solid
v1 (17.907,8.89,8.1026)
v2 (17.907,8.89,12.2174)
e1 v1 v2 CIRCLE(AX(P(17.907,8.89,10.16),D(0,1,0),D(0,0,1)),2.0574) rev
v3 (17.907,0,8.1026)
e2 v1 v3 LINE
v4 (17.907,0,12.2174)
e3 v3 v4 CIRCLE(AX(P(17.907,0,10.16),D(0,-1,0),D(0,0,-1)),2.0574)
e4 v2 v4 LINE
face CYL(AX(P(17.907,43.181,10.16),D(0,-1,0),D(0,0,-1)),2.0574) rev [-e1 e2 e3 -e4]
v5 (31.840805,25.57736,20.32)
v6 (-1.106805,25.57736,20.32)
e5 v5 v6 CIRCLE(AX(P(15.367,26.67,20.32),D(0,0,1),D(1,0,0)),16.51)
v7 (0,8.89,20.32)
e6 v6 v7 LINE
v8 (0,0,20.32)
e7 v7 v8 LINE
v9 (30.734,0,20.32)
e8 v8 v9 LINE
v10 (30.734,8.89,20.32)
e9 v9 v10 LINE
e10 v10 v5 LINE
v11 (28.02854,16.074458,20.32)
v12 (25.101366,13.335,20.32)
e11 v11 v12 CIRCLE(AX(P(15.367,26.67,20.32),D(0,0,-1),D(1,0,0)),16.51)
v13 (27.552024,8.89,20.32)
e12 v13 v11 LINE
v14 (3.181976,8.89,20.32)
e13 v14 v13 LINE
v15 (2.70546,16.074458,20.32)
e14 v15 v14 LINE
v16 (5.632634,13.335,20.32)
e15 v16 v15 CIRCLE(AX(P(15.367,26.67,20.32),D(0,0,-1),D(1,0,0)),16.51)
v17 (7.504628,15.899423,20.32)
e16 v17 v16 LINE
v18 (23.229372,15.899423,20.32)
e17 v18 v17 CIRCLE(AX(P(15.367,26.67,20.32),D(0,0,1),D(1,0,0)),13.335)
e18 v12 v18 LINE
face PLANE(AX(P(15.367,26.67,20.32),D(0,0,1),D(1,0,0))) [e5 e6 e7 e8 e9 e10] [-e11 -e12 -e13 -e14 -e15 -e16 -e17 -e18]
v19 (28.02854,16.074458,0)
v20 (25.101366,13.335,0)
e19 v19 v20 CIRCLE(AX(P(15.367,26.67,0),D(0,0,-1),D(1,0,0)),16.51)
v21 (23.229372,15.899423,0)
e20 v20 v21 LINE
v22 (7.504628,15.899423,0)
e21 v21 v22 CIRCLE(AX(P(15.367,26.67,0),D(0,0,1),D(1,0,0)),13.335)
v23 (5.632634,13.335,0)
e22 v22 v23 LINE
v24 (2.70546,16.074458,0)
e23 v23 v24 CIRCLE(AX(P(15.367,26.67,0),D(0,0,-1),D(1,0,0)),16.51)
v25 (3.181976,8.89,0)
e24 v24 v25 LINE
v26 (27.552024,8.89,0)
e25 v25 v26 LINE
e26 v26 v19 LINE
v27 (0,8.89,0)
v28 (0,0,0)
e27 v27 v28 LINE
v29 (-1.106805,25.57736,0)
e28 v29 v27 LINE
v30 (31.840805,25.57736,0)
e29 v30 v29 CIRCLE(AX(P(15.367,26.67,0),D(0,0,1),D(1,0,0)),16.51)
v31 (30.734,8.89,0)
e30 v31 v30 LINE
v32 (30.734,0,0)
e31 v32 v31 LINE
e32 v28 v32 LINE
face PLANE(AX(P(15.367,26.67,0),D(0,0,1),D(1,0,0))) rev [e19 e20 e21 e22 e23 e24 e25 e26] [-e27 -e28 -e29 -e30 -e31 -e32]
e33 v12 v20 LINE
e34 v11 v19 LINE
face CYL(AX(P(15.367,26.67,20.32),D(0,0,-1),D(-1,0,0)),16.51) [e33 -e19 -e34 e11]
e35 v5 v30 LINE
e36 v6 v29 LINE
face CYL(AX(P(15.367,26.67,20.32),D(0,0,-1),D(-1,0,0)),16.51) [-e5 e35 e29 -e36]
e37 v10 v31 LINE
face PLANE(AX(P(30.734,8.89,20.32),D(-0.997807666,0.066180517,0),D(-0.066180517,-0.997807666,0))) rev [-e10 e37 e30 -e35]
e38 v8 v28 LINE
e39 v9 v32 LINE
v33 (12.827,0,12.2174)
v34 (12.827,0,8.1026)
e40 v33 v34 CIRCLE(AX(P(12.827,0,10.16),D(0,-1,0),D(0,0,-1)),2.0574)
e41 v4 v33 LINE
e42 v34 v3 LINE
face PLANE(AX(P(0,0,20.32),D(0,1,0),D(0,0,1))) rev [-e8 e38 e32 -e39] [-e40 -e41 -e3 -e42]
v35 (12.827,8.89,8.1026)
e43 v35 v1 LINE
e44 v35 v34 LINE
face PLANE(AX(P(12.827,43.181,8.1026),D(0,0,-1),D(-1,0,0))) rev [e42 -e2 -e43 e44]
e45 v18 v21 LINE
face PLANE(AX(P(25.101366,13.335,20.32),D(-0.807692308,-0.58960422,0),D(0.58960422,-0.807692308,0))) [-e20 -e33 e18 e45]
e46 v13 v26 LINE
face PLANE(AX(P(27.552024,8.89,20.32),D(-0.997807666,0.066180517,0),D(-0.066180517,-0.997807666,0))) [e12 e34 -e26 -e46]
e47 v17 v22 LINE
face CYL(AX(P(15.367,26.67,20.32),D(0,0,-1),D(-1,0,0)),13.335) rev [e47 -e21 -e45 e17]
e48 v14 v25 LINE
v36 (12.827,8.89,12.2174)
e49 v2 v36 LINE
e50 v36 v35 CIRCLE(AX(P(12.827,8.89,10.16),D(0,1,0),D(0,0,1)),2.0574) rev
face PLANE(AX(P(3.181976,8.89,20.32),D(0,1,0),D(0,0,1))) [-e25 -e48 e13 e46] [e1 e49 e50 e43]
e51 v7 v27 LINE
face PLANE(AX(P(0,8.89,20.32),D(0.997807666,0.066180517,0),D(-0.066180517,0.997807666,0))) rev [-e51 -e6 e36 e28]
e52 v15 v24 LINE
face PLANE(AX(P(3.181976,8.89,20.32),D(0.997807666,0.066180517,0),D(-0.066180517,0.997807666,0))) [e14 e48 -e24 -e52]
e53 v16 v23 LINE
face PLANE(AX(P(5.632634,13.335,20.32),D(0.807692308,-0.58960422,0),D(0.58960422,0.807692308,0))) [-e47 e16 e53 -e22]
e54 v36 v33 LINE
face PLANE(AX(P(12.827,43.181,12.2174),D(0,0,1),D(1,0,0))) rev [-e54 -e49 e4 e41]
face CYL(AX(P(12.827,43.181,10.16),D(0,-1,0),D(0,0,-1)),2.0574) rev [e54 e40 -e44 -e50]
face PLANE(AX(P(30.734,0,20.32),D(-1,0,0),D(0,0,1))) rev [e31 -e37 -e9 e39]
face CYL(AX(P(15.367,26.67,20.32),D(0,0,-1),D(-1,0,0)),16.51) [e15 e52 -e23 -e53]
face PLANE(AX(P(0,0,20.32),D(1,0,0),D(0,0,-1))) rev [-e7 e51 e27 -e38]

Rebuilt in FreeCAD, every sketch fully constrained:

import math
import FreeCAD as App
import Part
import Sketcher

V = App.Vector
Q = App.Units.Quantity

doc = App.newDocument("Part")
body = doc.addObject("PartDesign::Body", "Body")

sketch1 = doc.addObject("Sketcher::SketchObject", "Sketch")
body.addObject(sketch1)
sketch1.AttachmentSupport = (doc.XY_Plane, [""])
sketch1.MapMode = "FlatFace"
sketch1.addGeometry(Part.LineSegment(V(0, 0, 0), V(30.7, 0, 0)), False)
sketch1.addGeometry(Part.LineSegment(V(30.7, 0, 0), V(30.7, 8.9, 0)), False)
sketch1.addGeometry(Part.LineSegment(V(30.7, 8.9, 0), V(31.8, 25.6, 0)), False)
sketch1.addGeometry(Part.ArcOfCircle(Part.Circle(V(15.4, 26.7, 0), V(0, 0, 1), 16.5), math.radians(-4), math.radians(184)), False)
sketch1.addGeometry(Part.LineSegment(V(-1.1, 25.6, 0), V(0, 8.9, 0)), False)
sketch1.addGeometry(Part.LineSegment(V(0, 8.9, 0), V(0, 0, 0)), False)
sketch1.addGeometry(Part.LineSegment(V(27.6, 8.9, 0), V(3.2, 8.9, 0)), False)
sketch1.addGeometry(Part.LineSegment(V(3.2, 8.9, 0), V(2.7, 16.1, 0)), False)
sketch1.addGeometry(Part.ArcOfCircle(Part.Circle(V(15.4, 26.7, 0), V(0, 0, 1), 16.5), math.radians(-140.08), math.radians(-126.13)), False)
sketch1.addGeometry(Part.LineSegment(V(5.6, 13.3, 0), V(7.5, 15.9, 0)), False)
sketch1.addGeometry(Part.ArcOfCircle(Part.Circle(V(15.4, 26.7, 0), V(0, 0, 1), 13.3), math.radians(-54), math.radians(234)), False)
sketch1.addGeometry(Part.LineSegment(V(23.2, 15.9, 0), V(25.1, 13.3, 0)), False)
sketch1.addGeometry(Part.ArcOfCircle(Part.Circle(V(15.4, 26.7, 0), V(0, 0, 1), 16.5), math.radians(-53.87), math.radians(-39.92)), False)
sketch1.addGeometry(Part.LineSegment(V(28, 16.1, 0), V(27.6, 8.9, 0)), False)
sketch1.addConstraint(Sketcher.Constraint("Coincident", 0, 2, 1, 1))
sketch1.addConstraint(Sketcher.Constraint("Coincident", 1, 2, 2, 1))
sketch1.addConstraint(Sketcher.Constraint("Tangent", 2, 2, 3, 1))
sketch1.addConstraint(Sketcher.Constraint("Tangent", 3, 2, 4, 1))
sketch1.addConstraint(Sketcher.Constraint("Coincident", 4, 2, 5, 1))
sketch1.addConstraint(Sketcher.Constraint("Coincident", 5, 2, 0, 1))
sketch1.addConstraint(Sketcher.Constraint("Coincident", 6, 2, 7, 1))
sketch1.addConstraint(Sketcher.Constraint("Coincident", 7, 2, 8, 1))
sketch1.addConstraint(Sketcher.Constraint("Coincident", 8, 2, 9, 1))
sketch1.addConstraint(Sketcher.Constraint("Coincident", 9, 2, 10, 2))
sketch1.addConstraint(Sketcher.Constraint("Coincident", 10, 1, 11, 1))
sketch1.addConstraint(Sketcher.Constraint("Coincident", 11, 2, 12, 1))
sketch1.addConstraint(Sketcher.Constraint("Coincident", 12, 2, 13, 1))
sketch1.addConstraint(Sketcher.Constraint("Coincident", 13, 2, 6, 1))
sketch1.addConstraint(Sketcher.Constraint("Horizontal", 0))
sketch1.addConstraint(Sketcher.Constraint("Vertical", 1))
sketch1.addConstraint(Sketcher.Constraint("Vertical", 5))
sketch1.addConstraint(Sketcher.Constraint("Horizontal", 6))
sketch1.addConstraint(Sketcher.Constraint("Coincident", 5, 2, -1, 1))
sketch1.addConstraint(Sketcher.Constraint("Coincident", 8, 3, 3, 3))
sketch1.addConstraint(Sketcher.Constraint("Coincident", 10, 3, 3, 3))
sketch1.addConstraint(Sketcher.Constraint("Coincident", 12, 3, 3, 3))
sketch1.addConstraint(Sketcher.Constraint("Equal", 3, 8))
sketch1.addConstraint(Sketcher.Constraint("Equal", 8, 12))
sketch1.addConstraint(Sketcher.Constraint("Parallel", 4, 7))
sketch1.addConstraint(Sketcher.Constraint("Parallel", 2, 13))
sketch1.addConstraint(Sketcher.Constraint("Horizontal", 2, 2, 3, 2))
sketch1.addConstraint(Sketcher.Constraint("Horizontal", 1, 2, 4, 2))
sketch1.addConstraint(Sketcher.Constraint("Horizontal", 4, 2, 6, 2))
sketch1.addConstraint(Sketcher.Constraint("Horizontal", 9, 2, 10, 1))
sketch1.addConstraint(Sketcher.Constraint("Horizontal", 8, 2, 11, 2))
sketch1.addConstraint(Sketcher.Constraint("Horizontal", 7, 2, 12, 2))
sketch1.addConstraint(Sketcher.Constraint("Radius", 3, Q("0.65 in")))
sketch1.addConstraint(Sketcher.Constraint("Radius", 10, Q("0.525 in")))
sketch1.addConstraint(Sketcher.Constraint("DistanceX", 0, 1, 0, 2, Q("1.21 in")))
sketch1.addConstraint(Sketcher.Constraint("DistanceY", 1, 1, 1, 2, Q("0.35 in")))
sketch1.addConstraint(Sketcher.Constraint("DistanceY", 1, 2, 12, 3, Q("0.7 in")))
sketch1.addConstraint(Sketcher.Constraint("DistanceY", -1, 1, 8, 2, Q("0.525 in")))
sketch1.addConstraint(Sketcher.Constraint("DistanceX", 6, 2, 6, 1, 24.370048))
sketch1.addConstraint(Sketcher.Constraint("DistanceX", 6, 2, 9, 2, 4.322652))
pad1 = doc.addObject("PartDesign::Pad", "Pad")
body.addObject(pad1)
pad1.Profile = sketch1
pad1.Length = Q("0.8 in")

sketch2 = doc.addObject("Sketcher::SketchObject", "Sketch001")
body.addObject(sketch2)
sketch2.AttachmentSupport = (doc.XZ_Plane, [""])
sketch2.MapMode = "FlatFace"
sketch2.addGeometry(Part.LineSegment(V(17.9, 12.2, 0), V(12.8, 12.2, 0)), False)
sketch2.addGeometry(Part.ArcOfCircle(Part.Circle(V(12.8, 10.2, 0), V(0, 0, 1), 2.1), math.radians(90), math.radians(270)), False)
sketch2.addGeometry(Part.LineSegment(V(12.8, 8.1, 0), V(17.9, 8.1, 0)), False)
sketch2.addGeometry(Part.ArcOfCircle(Part.Circle(V(17.9, 10.2, 0), V(0, 0, 1), 2.1), math.radians(-90), math.radians(90)), False)
sketch2.addConstraint(Sketcher.Constraint("Tangent", 0, 2, 1, 1))
sketch2.addConstraint(Sketcher.Constraint("Tangent", 1, 2, 2, 1))
sketch2.addConstraint(Sketcher.Constraint("Tangent", 2, 2, 3, 1))
sketch2.addConstraint(Sketcher.Constraint("Tangent", 3, 2, 0, 1))
sketch2.addConstraint(Sketcher.Constraint("Horizontal", 0))
sketch2.addConstraint(Sketcher.Constraint("Horizontal", 2))
sketch2.addConstraint(Sketcher.Constraint("DistanceX", 0, 2, 0, 1, Q("0.2 in")))
sketch2.addConstraint(Sketcher.Constraint("Radius", 1, Q("0.081 in")))
sketch2.addConstraint(Sketcher.Constraint("DistanceY", -1, 1, 1, 3, Q("0.4 in")))
sketch2.addConstraint(Sketcher.Constraint("DistanceX", -1, 1, 1, 3, Q("0.505 in")))
pocket1 = doc.addObject("PartDesign::Pocket", "Pocket")
body.addObject(pocket1)
pocket1.Profile = sketch2
pocket1.Type = "UpToFirst"

doc.recompute()
